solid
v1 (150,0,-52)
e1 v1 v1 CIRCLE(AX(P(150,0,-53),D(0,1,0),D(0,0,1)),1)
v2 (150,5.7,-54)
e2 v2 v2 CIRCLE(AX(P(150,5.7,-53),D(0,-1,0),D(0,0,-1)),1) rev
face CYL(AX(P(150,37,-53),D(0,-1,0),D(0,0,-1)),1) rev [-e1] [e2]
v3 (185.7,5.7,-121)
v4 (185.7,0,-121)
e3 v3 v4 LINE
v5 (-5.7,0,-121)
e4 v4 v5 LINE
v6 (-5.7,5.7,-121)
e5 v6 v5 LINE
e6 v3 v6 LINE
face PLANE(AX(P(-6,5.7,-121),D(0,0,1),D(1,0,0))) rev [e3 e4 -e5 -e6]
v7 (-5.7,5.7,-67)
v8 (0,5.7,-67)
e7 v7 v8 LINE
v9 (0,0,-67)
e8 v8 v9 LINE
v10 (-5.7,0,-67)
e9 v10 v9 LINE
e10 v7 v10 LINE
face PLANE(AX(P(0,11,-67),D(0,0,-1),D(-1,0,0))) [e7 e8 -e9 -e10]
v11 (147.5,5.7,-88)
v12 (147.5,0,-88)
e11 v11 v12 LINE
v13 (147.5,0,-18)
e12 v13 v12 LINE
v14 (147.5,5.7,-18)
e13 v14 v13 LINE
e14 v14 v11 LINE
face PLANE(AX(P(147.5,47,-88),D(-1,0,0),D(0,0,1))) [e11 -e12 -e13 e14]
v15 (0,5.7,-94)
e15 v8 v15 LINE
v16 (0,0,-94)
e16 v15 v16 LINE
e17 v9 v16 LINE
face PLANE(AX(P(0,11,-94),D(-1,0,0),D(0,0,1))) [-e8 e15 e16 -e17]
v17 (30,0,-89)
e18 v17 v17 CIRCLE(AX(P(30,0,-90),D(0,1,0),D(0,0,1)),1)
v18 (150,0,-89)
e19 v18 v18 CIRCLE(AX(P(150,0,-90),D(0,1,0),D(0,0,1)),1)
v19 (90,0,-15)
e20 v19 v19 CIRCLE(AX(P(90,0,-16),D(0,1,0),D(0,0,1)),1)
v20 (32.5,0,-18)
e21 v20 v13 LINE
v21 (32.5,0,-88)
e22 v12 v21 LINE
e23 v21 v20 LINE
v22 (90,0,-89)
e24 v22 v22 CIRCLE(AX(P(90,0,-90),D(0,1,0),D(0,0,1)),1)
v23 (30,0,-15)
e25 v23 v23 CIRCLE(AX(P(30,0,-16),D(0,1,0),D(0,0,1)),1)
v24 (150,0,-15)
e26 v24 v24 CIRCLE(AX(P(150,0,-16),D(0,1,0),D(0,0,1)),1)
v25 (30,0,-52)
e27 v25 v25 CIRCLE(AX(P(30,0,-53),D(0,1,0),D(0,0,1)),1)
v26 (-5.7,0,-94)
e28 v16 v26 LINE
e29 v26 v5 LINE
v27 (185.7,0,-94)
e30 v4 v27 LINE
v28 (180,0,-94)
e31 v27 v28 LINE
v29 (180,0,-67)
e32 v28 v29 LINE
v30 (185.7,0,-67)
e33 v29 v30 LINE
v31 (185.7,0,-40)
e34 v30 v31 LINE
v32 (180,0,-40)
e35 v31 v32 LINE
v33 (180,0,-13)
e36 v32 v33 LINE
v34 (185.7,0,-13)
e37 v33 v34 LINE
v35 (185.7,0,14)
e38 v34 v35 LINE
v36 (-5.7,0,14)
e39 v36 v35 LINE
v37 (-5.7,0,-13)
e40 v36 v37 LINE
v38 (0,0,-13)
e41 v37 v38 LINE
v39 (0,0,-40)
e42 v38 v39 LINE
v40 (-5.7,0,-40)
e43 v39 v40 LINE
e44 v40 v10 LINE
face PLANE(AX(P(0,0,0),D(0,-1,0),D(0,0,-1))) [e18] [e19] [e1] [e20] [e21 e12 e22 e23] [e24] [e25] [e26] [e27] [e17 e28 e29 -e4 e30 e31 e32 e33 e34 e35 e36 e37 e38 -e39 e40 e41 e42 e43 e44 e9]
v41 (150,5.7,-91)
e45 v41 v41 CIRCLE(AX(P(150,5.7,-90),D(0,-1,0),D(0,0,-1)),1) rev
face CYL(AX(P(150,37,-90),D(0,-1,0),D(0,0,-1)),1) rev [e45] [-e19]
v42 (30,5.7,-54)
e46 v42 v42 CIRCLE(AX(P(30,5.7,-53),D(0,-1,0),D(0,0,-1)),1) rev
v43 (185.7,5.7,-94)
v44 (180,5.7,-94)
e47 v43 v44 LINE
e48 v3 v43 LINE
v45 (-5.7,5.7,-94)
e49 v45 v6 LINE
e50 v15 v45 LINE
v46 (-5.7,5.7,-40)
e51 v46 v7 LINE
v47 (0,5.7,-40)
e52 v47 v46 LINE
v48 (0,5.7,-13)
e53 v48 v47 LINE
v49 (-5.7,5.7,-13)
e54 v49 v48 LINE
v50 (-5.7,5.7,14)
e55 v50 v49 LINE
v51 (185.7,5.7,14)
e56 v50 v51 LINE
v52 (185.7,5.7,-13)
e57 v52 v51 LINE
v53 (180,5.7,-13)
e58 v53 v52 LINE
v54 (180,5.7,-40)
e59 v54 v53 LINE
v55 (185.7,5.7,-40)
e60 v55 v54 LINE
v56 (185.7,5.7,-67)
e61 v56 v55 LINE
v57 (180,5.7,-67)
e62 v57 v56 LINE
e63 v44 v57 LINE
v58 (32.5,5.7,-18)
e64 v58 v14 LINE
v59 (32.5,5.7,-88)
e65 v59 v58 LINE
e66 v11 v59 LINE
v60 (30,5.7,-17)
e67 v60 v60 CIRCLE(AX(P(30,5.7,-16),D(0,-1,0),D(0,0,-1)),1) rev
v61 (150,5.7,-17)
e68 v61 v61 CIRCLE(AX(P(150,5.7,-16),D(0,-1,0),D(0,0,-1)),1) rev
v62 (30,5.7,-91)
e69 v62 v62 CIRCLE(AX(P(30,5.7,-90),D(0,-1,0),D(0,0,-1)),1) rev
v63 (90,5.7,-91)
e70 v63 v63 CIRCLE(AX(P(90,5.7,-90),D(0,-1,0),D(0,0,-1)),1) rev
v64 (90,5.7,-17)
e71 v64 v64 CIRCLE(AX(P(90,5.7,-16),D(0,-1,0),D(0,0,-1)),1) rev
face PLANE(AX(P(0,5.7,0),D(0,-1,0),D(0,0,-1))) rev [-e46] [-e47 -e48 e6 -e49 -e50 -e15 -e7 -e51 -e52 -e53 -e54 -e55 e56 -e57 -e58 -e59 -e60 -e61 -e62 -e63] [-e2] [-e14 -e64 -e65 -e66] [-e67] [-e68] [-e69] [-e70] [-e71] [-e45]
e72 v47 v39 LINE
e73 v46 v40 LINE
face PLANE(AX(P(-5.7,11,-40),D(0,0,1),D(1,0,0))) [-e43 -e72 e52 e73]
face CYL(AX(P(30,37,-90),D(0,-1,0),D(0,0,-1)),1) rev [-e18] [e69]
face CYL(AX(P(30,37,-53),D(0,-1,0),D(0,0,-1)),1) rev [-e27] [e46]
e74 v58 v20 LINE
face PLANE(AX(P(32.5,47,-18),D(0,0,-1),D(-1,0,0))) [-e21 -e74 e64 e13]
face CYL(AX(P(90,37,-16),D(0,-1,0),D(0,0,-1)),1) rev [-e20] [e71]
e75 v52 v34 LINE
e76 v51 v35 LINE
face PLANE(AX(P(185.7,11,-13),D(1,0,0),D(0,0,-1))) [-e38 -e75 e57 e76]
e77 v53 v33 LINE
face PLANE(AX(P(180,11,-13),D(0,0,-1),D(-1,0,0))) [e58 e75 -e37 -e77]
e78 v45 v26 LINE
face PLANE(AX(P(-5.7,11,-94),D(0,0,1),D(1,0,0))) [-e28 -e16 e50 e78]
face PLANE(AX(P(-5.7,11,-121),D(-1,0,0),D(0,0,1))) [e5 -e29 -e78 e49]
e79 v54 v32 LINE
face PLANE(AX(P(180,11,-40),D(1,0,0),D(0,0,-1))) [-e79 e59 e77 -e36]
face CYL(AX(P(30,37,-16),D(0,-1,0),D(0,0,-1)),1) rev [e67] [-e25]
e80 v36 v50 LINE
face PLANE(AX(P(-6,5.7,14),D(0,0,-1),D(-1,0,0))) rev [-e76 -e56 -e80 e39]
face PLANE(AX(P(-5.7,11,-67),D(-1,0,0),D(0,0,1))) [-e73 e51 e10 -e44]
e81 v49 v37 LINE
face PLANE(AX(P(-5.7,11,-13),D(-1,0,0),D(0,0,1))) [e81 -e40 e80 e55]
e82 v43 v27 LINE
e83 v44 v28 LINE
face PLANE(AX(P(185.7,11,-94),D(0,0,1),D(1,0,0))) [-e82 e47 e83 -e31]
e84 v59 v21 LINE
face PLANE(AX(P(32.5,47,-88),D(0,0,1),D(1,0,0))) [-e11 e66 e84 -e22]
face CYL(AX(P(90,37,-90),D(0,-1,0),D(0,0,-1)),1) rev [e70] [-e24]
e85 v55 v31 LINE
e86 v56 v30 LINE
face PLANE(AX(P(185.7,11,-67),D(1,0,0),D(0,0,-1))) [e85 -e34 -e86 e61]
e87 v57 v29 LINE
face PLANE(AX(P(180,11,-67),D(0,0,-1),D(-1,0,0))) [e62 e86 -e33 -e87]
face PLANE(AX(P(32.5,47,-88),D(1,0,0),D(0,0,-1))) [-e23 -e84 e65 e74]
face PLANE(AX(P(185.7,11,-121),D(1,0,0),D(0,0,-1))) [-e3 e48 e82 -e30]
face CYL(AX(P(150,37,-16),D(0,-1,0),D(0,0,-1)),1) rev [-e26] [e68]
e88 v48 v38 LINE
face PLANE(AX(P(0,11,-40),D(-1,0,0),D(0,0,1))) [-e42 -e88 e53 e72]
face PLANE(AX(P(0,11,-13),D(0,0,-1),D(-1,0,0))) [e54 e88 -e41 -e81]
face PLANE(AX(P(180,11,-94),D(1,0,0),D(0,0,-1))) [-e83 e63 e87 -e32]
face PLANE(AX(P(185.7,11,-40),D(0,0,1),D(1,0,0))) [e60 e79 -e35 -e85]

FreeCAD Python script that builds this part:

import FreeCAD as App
import Part
import Sketcher
Q = App.Units.Quantity


def add_polygon(sketch, points):
    """Adds a closed chain of lines whose ends are joined by coincident constraints."""
    first, n = sketch.GeometryCount, len(points)
    for a, b in zip(points, points[1:] + points[:1]):
        sketch.addGeometry(Part.LineSegment(App.Vector(*a, 0), App.Vector(*b, 0)), False)
    for i in range(n):
        sketch.addConstraint(Sketcher.Constraint("Coincident", first + i, 2, first + (i + 1) % n, 1))

doc = App.newDocument("Part")
body = doc.addObject("PartDesign::Body", "Body")

sketch1 = body.newObject("Sketcher::SketchObject", "Sketch")
sketch1.AttachmentSupport = (doc.getObject("XZ_Plane"), [""])
sketch1.MapMode = "FlatFace"
add_polygon(sketch1, [(-6, -121), (-6, 14), (186, 14), (186, -121)])
sketch1.addConstraint([
    Sketcher.Constraint("Vertical", 0),
    Sketcher.Constraint("Horizontal", 1),
    Sketcher.Constraint("Vertical", 2),
    Sketcher.Constraint("Horizontal", 3),
    Sketcher.Constraint("DistanceX", 1, 1, 1, 2, Q("192 mm")),
    Sketcher.Constraint("DistanceY", 0, 1, 0, 2, Q("135 mm")),
    Sketcher.Constraint("DistanceX", 0, 2, -1, 1, Q("6 mm")),
    Sketcher.Constraint("DistanceY", -1, 1, 0, 2, Q("14 mm")),
])
pad1 = body.newObject("PartDesign::Pad", "Pad")
pad1.Profile = sketch1
pad1.Length = 5.7
pad1.Reversed = True

sketch2 = body.newObject("Sketcher::SketchObject", "Sketch001")
sketch2.AttachmentSupport = (doc.getObject("XZ_Plane"), [""])
sketch2.MapMode = "FlatFace"
add_polygon(sketch2, [(32.5, -88), (32.5, -18), (147.5, -18), (147.5, -88)])
sketch2.addConstraint([
    Sketcher.Constraint("Vertical", 0),
    Sketcher.Constraint("Horizontal", 1),
    Sketcher.Constraint("Vertical", 2),
    Sketcher.Constraint("Horizontal", 3),
    Sketcher.Constraint("DistanceX", 1, 1, 1, 2, Q("115 mm")),
    Sketcher.Constraint("DistanceY", 0, 1, 0, 2, Q("70 mm")),
    Sketcher.Constraint("DistanceY", 0, 2, -1, 1, Q("18 mm")),
    Sketcher.Constraint("DistanceX", -1, 1, 0, 2, Q("32.5 mm")),
])
pocket1 = body.newObject("PartDesign::Pocket", "Pocket")
pocket1.Profile = sketch2
pocket1.Length = 47

sketch3 = body.newObject("Sketcher::SketchObject", "Sketch002")
sketch3.AttachmentSupport = (doc.getObject("XZ_Plane"), [""])
sketch3.MapMode = "FlatFace"
sketch3.addGeometry([
    Part.Circle(App.Vector(30, -90, 0), App.Vector(0, 0, 1), 1),
    Part.Circle(App.Vector(30, -53, 0), App.Vector(0, 0, 1), 1),
    Part.Circle(App.Vector(30, -16, 0), App.Vector(0, 0, 1), 1),
    Part.Circle(App.Vector(90, -16, 0), App.Vector(0, 0, 1), 1),
    Part.Circle(App.Vector(150, -16, 0), App.Vector(0, 0, 1), 1),
    Part.Circle(App.Vector(150, -53, 0), App.Vector(0, 0, 1), 1),
    Part.Circle(App.Vector(150, -90, 0), App.Vector(0, 0, 1), 1),
    Part.Circle(App.Vector(90, -90, 0), App.Vector(0, 0, 1), 1),
], False)
sketch3.addConstraint([
    Sketcher.Constraint("Equal", 0, 1),
    Sketcher.Constraint("Equal", 1, 2),
    Sketcher.Constraint("Equal", 2, 3),
    Sketcher.Constraint("Equal", 3, 4),
    Sketcher.Constraint("Equal", 4, 5),
    Sketcher.Constraint("Equal", 5, 6),
    Sketcher.Constraint("Equal", 6, 7),
    Sketcher.Constraint("Horizontal", 2, 3, 3, 3),
    Sketcher.Constraint("Horizontal", 3, 3, 4, 3),
    Sketcher.Constraint("Horizontal", 1, 3, 5, 3),
    Sketcher.Constraint("Horizontal", 0, 3, 6, 3),
    Sketcher.Constraint("Horizontal", 6, 3, 7, 3),
    Sketcher.Constraint("Vertical", 0, 3, 1, 3),
    Sketcher.Constraint("Vertical", 1, 3, 2, 3),
    Sketcher.Constraint("Vertical", 4, 3, 5, 3),
    Sketcher.Constraint("Vertical", 5, 3, 6, 3),
    Sketcher.Constraint("Vertical", 3, 3, 7, 3),
    Sketcher.Constraint("Diameter", 0, Q("2 mm")),
    Sketcher.Constraint("DistanceX", -1, 1, 0, 3, Q("30 mm")),
    Sketcher.Constraint("DistanceY", 0, 3, -1, 1, Q("90 mm")),
    Sketcher.Constraint("DistanceY", 1, 3, -1, 1, Q("53 mm")),
    Sketcher.Constraint("DistanceY", 2, 3, -1, 1, Q("16 mm")),
    Sketcher.Constraint("DistanceX", -1, 1, 3, 3, Q("90 mm")),
    Sketcher.Constraint("DistanceX", -1, 1, 4, 3, Q("150 mm")),
])
pocket2 = body.newObject("PartDesign::Pocket", "Pocket001")
pocket2.Profile = sketch3
pocket2.Length = 37

sketch4 = body.newObject("Sketcher::SketchObject", "Sketch003")
sketch4.AttachmentSupport = (doc.getObject("XZ_Plane"), [""])
sketch4.MapMode = "FlatFace"
add_polygon(sketch4, [(-5.7, -94), (-5.7, -121), (-9.7, -121), (-9.7, 14), (-5.7, 14), (-5.7, -13), (0, -13), (0, -40), (-5.7, -40), (-5.7, -67), (0, -67), (0, -94)])
add_polygon(sketch4, [(189.7, -121), (185.7, -121), (185.7, -94), (180, -94), (180, -67), (185.7, -67), (185.7, -40), (180, -40), (180, -13), (185.7, -13), (185.7, 14), (189.7, 14)])
sketch4.addConstraint([
    Sketcher.Constraint("Vertical", 0),
    Sketcher.Constraint("Horizontal", 1),
    Sketcher.Constraint("Vertical", 2),
    Sketcher.Constraint("Horizontal", 3),
    Sketcher.Constraint("Vertical", 4),
    Sketcher.Constraint("Horizontal", 5),
    Sketcher.Constraint("Vertical", 6),
    Sketcher.Constraint("Horizontal", 7),
    Sketcher.Constraint("Vertical", 8),
    Sketcher.Constraint("Horizontal", 9),
    Sketcher.Constraint("Vertical", 10),
    Sketcher.Constraint("Horizontal", 11),
    Sketcher.Constraint("Horizontal", 12),
    Sketcher.Constraint("Vertical", 13),
    Sketcher.Constraint("Horizontal", 14),
    Sketcher.Constraint("Vertical", 15),
    Sketcher.Constraint("Horizontal", 16),
    Sketcher.Constraint("Vertical", 17),
    Sketcher.Constraint("Horizontal", 18),
    Sketcher.Constraint("Vertical", 19),
    Sketcher.Constraint("Horizontal", 20),
    Sketcher.Constraint("Vertical", 21),
    Sketcher.Constraint("Horizontal", 22),
    Sketcher.Constraint("Vertical", 23),
    Sketcher.Constraint("PointOnObject", 5, 2, -2),
    Sketcher.Constraint("PointOnObject", 9, 2, -2),
    Sketcher.Constraint("Horizontal", 1, 2, 12, 2),
    Sketcher.Constraint("Horizontal", 11, 2, 13, 2),
    Sketcher.Constraint("Horizontal", 9, 2, 15, 2),
    Sketcher.Constraint("Horizontal", 7, 2, 17, 2),
    Sketcher.Constraint("Horizontal", 5, 2, 19, 2),
    Sketcher.Constraint("Horizontal", 3, 2, 21, 2),
    Sketcher.Constraint("Vertical", 0, 2, 3, 2),
    Sketcher.Constraint("Vertical", 4, 2, 7, 2),
    Sketcher.Constraint("Vertical", 13, 2, 16, 2),
    Sketcher.Constraint("Vertical", 15, 2, 18, 2),
    Sketcher.Constraint("Vertical", 17, 2, 20, 2),
    Sketcher.Constraint("Equal", 3, 12),
    Sketcher.Constraint("Equal", 11, 14),
    Sketcher.Constraint("Equal", 0, 4),
    Sketcher.Constraint("Equal", 4, 6),
    Sketcher.Constraint("Equal", 6, 8),
    Sketcher.Constraint("Equal", 8, 10),
    Sketcher.Constraint("DistanceX", 1, 2, 1, 1, Q("4 mm")),
    Sketcher.Constraint("DistanceY", 0, 2, 0, 1, Q("27 mm")),
    Sketcher.Constraint("DistanceX", 5, 1, 5, 2, Q("5.7 mm")),
    Sketcher.Constraint("DistanceY", 0, 2, -1, 1, Q("121 mm")),
    Sketcher.Constraint("DistanceX", -1, 1, 14, 2, Q("180 mm")),
])
pocket3 = body.newObject("PartDesign::Pocket", "Pocket002")
pocket3.Profile = sketch4
pocket3.Length = 11

doc.recompute()
